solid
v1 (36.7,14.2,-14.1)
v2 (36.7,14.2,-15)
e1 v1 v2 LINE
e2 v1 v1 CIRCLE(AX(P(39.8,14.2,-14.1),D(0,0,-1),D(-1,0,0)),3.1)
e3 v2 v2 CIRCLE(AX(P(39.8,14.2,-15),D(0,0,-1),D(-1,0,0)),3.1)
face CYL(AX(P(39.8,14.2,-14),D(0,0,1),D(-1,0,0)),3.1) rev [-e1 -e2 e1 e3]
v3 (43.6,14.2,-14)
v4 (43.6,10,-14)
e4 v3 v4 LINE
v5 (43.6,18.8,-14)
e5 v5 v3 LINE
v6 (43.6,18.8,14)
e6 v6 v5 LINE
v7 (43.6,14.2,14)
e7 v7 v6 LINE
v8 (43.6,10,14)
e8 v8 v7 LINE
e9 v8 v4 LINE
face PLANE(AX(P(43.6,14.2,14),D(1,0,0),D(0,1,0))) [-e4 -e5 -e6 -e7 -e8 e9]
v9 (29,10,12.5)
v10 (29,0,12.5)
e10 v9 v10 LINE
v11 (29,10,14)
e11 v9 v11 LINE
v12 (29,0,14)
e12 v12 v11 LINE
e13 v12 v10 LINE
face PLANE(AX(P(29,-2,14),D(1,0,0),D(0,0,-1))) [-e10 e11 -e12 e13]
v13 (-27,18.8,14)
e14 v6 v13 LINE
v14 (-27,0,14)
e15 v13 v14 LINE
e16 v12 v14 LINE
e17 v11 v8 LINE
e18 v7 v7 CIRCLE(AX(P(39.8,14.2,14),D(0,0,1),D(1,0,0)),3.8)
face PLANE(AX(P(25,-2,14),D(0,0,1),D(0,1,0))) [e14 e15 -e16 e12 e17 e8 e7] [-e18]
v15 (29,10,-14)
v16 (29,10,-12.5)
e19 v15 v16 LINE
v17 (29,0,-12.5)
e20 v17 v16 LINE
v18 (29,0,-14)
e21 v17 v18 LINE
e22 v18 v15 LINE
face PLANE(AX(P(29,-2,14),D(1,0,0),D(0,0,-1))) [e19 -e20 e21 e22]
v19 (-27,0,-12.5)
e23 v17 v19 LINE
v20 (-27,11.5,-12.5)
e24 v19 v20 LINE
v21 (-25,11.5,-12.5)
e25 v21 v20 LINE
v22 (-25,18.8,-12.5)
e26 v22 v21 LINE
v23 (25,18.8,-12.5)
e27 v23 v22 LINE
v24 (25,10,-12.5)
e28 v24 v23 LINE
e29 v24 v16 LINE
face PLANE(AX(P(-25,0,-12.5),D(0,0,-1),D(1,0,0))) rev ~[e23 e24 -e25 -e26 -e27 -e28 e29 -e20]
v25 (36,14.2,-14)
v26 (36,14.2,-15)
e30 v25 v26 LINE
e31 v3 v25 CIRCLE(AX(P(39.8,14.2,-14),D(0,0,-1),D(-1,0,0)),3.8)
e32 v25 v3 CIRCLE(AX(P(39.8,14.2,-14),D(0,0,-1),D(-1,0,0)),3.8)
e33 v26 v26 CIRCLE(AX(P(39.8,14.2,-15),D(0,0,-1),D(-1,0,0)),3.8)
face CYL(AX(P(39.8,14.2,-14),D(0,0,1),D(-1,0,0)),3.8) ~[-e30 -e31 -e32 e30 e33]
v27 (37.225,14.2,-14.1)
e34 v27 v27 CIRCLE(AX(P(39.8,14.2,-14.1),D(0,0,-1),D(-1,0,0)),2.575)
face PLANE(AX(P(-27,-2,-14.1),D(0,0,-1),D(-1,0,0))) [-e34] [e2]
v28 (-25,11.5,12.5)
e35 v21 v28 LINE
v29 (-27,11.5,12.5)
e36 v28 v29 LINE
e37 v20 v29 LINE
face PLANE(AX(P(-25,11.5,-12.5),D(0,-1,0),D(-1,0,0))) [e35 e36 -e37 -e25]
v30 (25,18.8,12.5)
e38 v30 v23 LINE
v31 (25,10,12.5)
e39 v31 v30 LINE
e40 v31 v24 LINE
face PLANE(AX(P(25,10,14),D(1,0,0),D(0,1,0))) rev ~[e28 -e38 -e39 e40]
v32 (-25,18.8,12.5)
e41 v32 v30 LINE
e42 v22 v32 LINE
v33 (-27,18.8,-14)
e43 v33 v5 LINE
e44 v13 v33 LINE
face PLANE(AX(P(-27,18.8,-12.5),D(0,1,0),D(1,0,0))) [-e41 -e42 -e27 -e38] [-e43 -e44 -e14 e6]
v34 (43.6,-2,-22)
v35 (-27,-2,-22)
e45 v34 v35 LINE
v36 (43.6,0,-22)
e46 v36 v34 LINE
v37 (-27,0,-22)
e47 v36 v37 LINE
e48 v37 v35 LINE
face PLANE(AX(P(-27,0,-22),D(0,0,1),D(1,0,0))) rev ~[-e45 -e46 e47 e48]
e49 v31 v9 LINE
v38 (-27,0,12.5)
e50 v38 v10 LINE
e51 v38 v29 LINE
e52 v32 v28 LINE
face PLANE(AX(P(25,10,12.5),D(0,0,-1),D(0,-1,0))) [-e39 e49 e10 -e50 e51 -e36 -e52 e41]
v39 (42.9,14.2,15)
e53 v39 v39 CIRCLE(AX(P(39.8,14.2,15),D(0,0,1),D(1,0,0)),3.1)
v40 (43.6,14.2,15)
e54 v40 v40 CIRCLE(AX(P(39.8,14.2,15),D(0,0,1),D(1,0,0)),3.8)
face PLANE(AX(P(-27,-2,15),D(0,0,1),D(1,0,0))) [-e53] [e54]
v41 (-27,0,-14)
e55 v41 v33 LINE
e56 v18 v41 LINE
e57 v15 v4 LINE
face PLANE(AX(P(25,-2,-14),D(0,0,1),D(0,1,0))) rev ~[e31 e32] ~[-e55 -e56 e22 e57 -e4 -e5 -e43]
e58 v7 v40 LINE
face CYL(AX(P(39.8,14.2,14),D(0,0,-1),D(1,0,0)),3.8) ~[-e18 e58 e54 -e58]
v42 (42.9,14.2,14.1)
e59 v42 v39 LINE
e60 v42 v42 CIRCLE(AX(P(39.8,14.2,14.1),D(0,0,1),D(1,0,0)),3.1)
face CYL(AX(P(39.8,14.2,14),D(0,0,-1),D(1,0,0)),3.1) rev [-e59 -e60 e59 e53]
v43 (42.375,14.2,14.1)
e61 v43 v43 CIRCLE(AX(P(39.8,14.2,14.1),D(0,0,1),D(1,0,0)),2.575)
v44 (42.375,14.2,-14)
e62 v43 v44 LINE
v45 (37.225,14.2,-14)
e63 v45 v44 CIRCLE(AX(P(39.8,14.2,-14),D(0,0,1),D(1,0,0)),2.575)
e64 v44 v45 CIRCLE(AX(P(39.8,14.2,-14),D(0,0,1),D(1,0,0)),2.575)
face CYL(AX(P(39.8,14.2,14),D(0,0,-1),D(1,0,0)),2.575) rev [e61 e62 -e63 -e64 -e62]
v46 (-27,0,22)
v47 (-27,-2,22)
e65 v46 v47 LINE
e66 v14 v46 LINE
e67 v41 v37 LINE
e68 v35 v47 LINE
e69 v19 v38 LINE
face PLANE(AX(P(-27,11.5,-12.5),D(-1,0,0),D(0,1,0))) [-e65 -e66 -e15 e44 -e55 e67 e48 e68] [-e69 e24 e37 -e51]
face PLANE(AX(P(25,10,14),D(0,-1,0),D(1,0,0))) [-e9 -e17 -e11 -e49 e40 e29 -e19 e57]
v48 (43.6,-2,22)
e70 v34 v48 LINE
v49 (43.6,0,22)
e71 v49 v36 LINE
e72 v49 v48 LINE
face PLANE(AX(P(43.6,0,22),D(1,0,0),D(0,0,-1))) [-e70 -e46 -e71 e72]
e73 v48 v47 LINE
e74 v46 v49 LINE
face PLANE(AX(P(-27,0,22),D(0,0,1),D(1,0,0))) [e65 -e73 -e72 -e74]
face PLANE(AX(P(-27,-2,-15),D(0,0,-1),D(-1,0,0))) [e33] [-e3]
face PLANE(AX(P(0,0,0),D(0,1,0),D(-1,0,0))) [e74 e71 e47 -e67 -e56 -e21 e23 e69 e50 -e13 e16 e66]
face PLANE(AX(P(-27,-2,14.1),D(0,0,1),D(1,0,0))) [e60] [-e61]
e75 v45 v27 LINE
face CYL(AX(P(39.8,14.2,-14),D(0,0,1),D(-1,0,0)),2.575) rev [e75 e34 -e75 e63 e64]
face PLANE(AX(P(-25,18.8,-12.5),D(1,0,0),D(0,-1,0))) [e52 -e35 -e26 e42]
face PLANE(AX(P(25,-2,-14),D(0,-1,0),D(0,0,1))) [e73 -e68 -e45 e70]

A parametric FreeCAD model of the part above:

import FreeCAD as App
import Part
import Sketcher

V = App.Vector


def add_polygon(sketch, points):
    """Adds a closed chain of lines whose ends are joined by coincident constraints."""
    first, n = sketch.GeometryCount, len(points)
    for a, b in zip(points, points[1:] + points[:1]):
        sketch.addGeometry(Part.LineSegment(App.Vector(*a, 0), App.Vector(*b, 0)), False)
    for i in range(n):
        sketch.addConstraint(Sketcher.Constraint("Coincident", first + i, 2, first + (i + 1) % n, 1))

doc = App.newDocument("Part")
params = doc.addObject("Spreadsheet::Sheet", "Params")
for row, (alias, value) in enumerate([
    ("sketch1_width", "52 mm"),
    ("sketch1_height", "28 mm"),
    ("pad1_length", "2 mm"),
    ("sketch2_height", "1.5 mm"),
    ("sketch2_width", "52 mm"),
    ("pad2_length", "18.8 mm"),
    ("sketch3_width", "2 mm"),
    ("sketch3_height", "7.3 mm"),
    ("pad3_length", "25 mm"),
    ("sketch4_diameter", "5.15 mm"),
    ("sketch4_width", "18.6 mm"),
    ("sketch4_height", "8.8 mm"),
    ("pad4_length", "28 mm"),
    ("sketch5_width", "2 mm"),
    ("sketch5_height", "28 mm"),
    ("pad5_length", "18.6 mm"),
    ("sketch6_width", "10 mm"),
    ("sketch6_height", "1.5 mm"),
    ("pad6_length", "4 mm"),
    ("sketch7_diameter", "6.2 mm"),
    ("sketch7_diameter2", "7.6 mm"),
    ("pad7_length", "1 mm"),
    ("sketch8_diameter", "6.2 mm"),
    ("sketch8_diameter2", "5.15 mm"),
    ("pad8_length", "0.1 mm"),
    ("sketch9_diameter", "6.2 mm"),
    ("sketch9_diameter2", "5.15 mm"),
    ("pad9_length", "0.1 mm"),
    ("sketch10_diameter", "7.6 mm"),
    ("sketch10_diameter2", "6.2 mm"),
    ("pad10_length", "1 mm"),
    ("sketch11_height", "8 mm"),
    ("sketch11_width", "52 mm"),
    ("pad11_length", "2 mm"),
    ("sketch12_width", "2 mm"),
    ("sketch12_height", "8 mm"),
    ("pad12_length", "18.6 mm"),
], start=1):
    params.set(f"A{row}", alias)
    params.set(f"B{row}", "=" + value)
    params.setAlias(f"B{row}", alias)

body = doc.addObject("PartDesign::Body", "Body")

# Sketch on XZ plane
sketch1 = body.newObject("Sketcher::SketchObject", "Sketch")
sketch1.AttachmentSupport = (doc.getObject("XZ_Plane"), [""])
sketch1.MapMode = "FlatFace"
add_polygon(sketch1, [(25, 14), (25, -14), (-27, -14), (-27, 14)])  # lines 0-3
sketch1.addConstraint(Sketcher.Constraint("Vertical", 0))
sketch1.addConstraint(Sketcher.Constraint("Horizontal", 1))
sketch1.addConstraint(Sketcher.Constraint("Vertical", 2))
sketch1.addConstraint(Sketcher.Constraint("Horizontal", 3))
sketch1.addConstraint(Sketcher.Constraint("DistanceX", -1, 1, 0, 2, 25.0))
sketch1.addConstraint(Sketcher.Constraint("DistanceX", 1, 2, 1, 1, 52.0))
sketch1.addConstraint(Sketcher.Constraint("DistanceY", 0, 2, 0, 1, 28.0))
sketch1.addConstraint(Sketcher.Constraint("DistanceY", 0, 2, -1, 1, 14.0))
sketch1.setExpression("Constraints[9]", "Params.sketch1_width")
sketch1.setExpression("Constraints[10]", "Params.sketch1_height")
pad1 = body.newObject("PartDesign::Pad", "Pad")
pad1.Profile = sketch1
pad1.setExpression("Length", "Params.pad1_length")

# Sketch on XZ plane
sketch2 = body.newObject("Sketcher::SketchObject", "Sketch001")
sketch2.AttachmentSupport = (doc.getObject("XZ_Plane"), [""])
sketch2.MapMode = "FlatFace"
add_polygon(sketch2, [(25, 14), (25, 12.5), (-27, 12.5), (-27, 14)])  # lines 0-3
add_polygon(sketch2, [(-27, -12.5), (25, -12.5), (25, -14), (-27, -14)])  # lines 4-7
sketch2.addConstraint(Sketcher.Constraint("Vertical", 0))
sketch2.addConstraint(Sketcher.Constraint("Horizontal", 1))
sketch2.addConstraint(Sketcher.Constraint("Vertical", 2))
sketch2.addConstraint(Sketcher.Constraint("Horizontal", 3))
sketch2.addConstraint(Sketcher.Constraint("Horizontal", 4))
sketch2.addConstraint(Sketcher.Constraint("Vertical", 5))
sketch2.addConstraint(Sketcher.Constraint("Horizontal", 6))
sketch2.addConstraint(Sketcher.Constraint("Vertical", 7))
sketch2.addConstraint(Sketcher.Constraint("Symmetric", 0, 2, 4, 2, -1))
sketch2.addConstraint(Sketcher.Constraint("Symmetric", 2, 2, 6, 2, -1))
sketch2.addConstraint(Sketcher.Constraint("DistanceY", 0, 2, 0, 1, 1.5))
sketch2.addConstraint(Sketcher.Constraint("DistanceX", -1, 1, 0, 2, 25.0))
sketch2.addConstraint(Sketcher.Constraint("DistanceY", 4, 2, 0, 2, 25.0))
sketch2.addConstraint(Sketcher.Constraint("DistanceX", 1, 2, 1, 1, 52.0))
sketch2.setExpression("Constraints[18]", "Params.sketch2_height")
sketch2.setExpression("Constraints[21]", "Params.sketch2_width")
pad2 = body.newObject("PartDesign::Pad", "Pad001")
pad2.Profile = sketch2
pad2.setExpression("Length", "Params.pad2_length")
pad2.Reversed = True

# Sketch on XY plane
sketch3 = body.newObject("Sketcher::SketchObject", "Sketch002")
sketch3.AttachmentSupport = (doc.getObject("XY_Plane"), [""])
sketch3.MapMode = "FlatFace"
sketch3.AttachmentOffset = App.Placement(V(0, 0, -12.5), App.Rotation())
add_polygon(sketch3, [(-27, 18.8), (-27, 11.5), (-25, 11.5), (-25, 18.8)])  # lines 0-3
sketch3.addConstraint(Sketcher.Constraint("Vertical", 0))
sketch3.addConstraint(Sketcher.Constraint("Horizontal", 1))
sketch3.addConstraint(Sketcher.Constraint("Vertical", 2))
sketch3.addConstraint(Sketcher.Constraint("Horizontal", 3))
sketch3.addConstraint(Sketcher.Constraint("DistanceX", 1, 1, 1, 2, 2.0))
sketch3.addConstraint(Sketcher.Constraint("DistanceY", -1, 1, 0, 2, 11.5))
sketch3.addConstraint(Sketcher.Constraint("DistanceY", 0, 2, 0, 1, 7.3))
sketch3.addConstraint(Sketcher.Constraint("DistanceX", 0, 2, -1, 1, 27.0))
sketch3.setExpression("Constraints[8]", "Params.sketch3_width")
sketch3.setExpression("Constraints[10]", "Params.sketch3_height")
pad3 = body.newObject("PartDesign::Pad", "Pad002")
pad3.Profile = sketch3
pad3.setExpression("Length", "Params.pad3_length")

# Sketch on XY plane
sketch4 = body.newObject("Sketcher::SketchObject", "Sketch003")
sketch4.AttachmentSupport = (doc.getObject("XY_Plane"), [""])
sketch4.MapMode = "FlatFace"
sketch4.AttachmentOffset = App.Placement(V(0, 0, 14), App.Rotation())
add_polygon(sketch4, [(43.6, 10), (43.6, 18.8), (25, 18.8), (25, 10)])  # lines 0-3
sketch4.addGeometry(Part.Circle(V(39.8, 14.2, 0), V(0, 0, 1), 2.6), False)  # 4
sketch4.addConstraint(Sketcher.Constraint("Vertical", 0))
sketch4.addConstraint(Sketcher.Constraint("Horizontal", 1))
sketch4.addConstraint(Sketcher.Constraint("Vertical", 2))
sketch4.addConstraint(Sketcher.Constraint("Horizontal", 3))
sketch4.addConstraint(Sketcher.Constraint("Diameter", 4, 5.15))
sketch4.addConstraint(Sketcher.Constraint("DistanceX", 1, 2, 1, 1, 18.6))
sketch4.addConstraint(Sketcher.Constraint("DistanceY", -1, 1, 2, 2, 10.0))
sketch4.addConstraint(Sketcher.Constraint("DistanceY", -1, 1, 4, 3, 14.2))
sketch4.addConstraint(Sketcher.Constraint("DistanceY", 0, 1, 0, 2, 8.8))
sketch4.addConstraint(Sketcher.Constraint("DistanceX", -1, 1, 1, 2, 25.0))
sketch4.addConstraint(Sketcher.Constraint("DistanceX", -1, 1, 4, 3, 39.8))
sketch4.setExpression("Constraints[8]", "Params.sketch4_diameter")
sketch4.setExpression("Constraints[9]", "Params.sketch4_width")
sketch4.setExpression("Constraints[12]", "Params.sketch4_height")
pad4 = body.newObject("PartDesign::Pad", "Pad003")
pad4.Profile = sketch4
pad4.setExpression("Length", "Params.pad4_length")
pad4.Reversed = True

# Sketch on YZ plane
sketch5 = body.newObject("Sketcher::SketchObject", "Sketch004")
sketch5.AttachmentSupport = (doc.getObject("YZ_Plane"), [""])
sketch5.MapMode = "FlatFace"
sketch5.AttachmentOffset = App.Placement(V(0, 0, 25), App.Rotation())
add_polygon(sketch5, [(0, 14), (-2, 14), (-2, -14), (0, -14)])  # lines 0-3
sketch5.addConstraint(Sketcher.Constraint("Horizontal", 0))
sketch5.addConstraint(Sketcher.Constraint("Vertical", 1))
sketch5.addConstraint(Sketcher.Constraint("Horizontal", 2))
sketch5.addConstraint(Sketcher.Constraint("Vertical", 3))
sketch5.addConstraint(Sketcher.Constraint("Symmetric", 2, 2, 3, 2, -1, 1))
sketch5.addConstraint(Sketcher.Constraint("DistanceX", 0, 2, 0, 1, 2.0))
sketch5.addConstraint(Sketcher.Constraint("DistanceY", 1, 2, 1, 1, 28.0))
sketch5.setExpression("Constraints[9]", "Params.sketch5_width")
sketch5.setExpression("Constraints[10]", "Params.sketch5_height")
pad5 = body.newObject("PartDesign::Pad", "Pad004")
pad5.Profile = sketch5
pad5.setExpression("Length", "Params.pad5_length")

# Sketch on YZ plane
sketch6 = body.newObject("Sketcher::SketchObject", "Sketch005")
sketch6.AttachmentSupport = (doc.getObject("YZ_Plane"), [""])
sketch6.MapMode = "FlatFace"
sketch6.AttachmentOffset = App.Placement(V(0, 0, 25), App.Rotation())
add_polygon(sketch6, [(10, 14), (0, 14), (0, 12.5), (10, 12.5)])  # lines 0-3
add_polygon(sketch6, [(0, -12.5), (0, -14), (10, -14), (10, -12.5)])  # lines 4-7
sketch6.addConstraint(Sketcher.Constraint("Horizontal", 0))
sketch6.addConstraint(Sketcher.Constraint("Vertical", 1))
sketch6.addConstraint(Sketcher.Constraint("Horizontal", 2))
sketch6.addConstraint(Sketcher.Constraint("Vertical", 3))
sketch6.addConstraint(Sketcher.Constraint("Vertical", 4))
sketch6.addConstraint(Sketcher.Constraint("Horizontal", 5))
sketch6.addConstraint(Sketcher.Constraint("Vertical", 6))
sketch6.addConstraint(Sketcher.Constraint("Horizontal", 7))
sketch6.addConstraint(Sketcher.Constraint("Symmetric", 0, 2, 4, 2, -1, 1))
sketch6.addConstraint(Sketcher.Constraint("Symmetric", 2, 2, 6, 2, -1))
sketch6.addConstraint(Sketcher.Constraint("PointOnObject", 0, 2, -2))
sketch6.addConstraint(Sketcher.Constraint("DistanceX", 0, 2, 0, 1, 10.0))
sketch6.addConstraint(Sketcher.Constraint("DistanceY", 1, 2, 1, 1, 1.5))
sketch6.addConstraint(Sketcher.Constraint("DistanceY", -1, 1, 0, 2, 14.0))
sketch6.setExpression("Constraints[19]", "Params.sketch6_width")
sketch6.setExpression("Constraints[20]", "Params.sketch6_height")
pad6 = body.newObject("PartDesign::Pad", "Pad005")
pad6.Profile = sketch6
pad6.setExpression("Length", "Params.pad6_length")

# Sketch on XY plane
sketch7 = body.newObject("Sketcher::SketchObject", "Sketch006")
sketch7.AttachmentSupport = (doc.getObject("XY_Plane"), [""])
sketch7.MapMode = "FlatFace"
sketch7.AttachmentOffset = App.Placement(V(0, 0, 14), App.Rotation())
sketch7.addGeometry(Part.Circle(V(39.8, 14.2, 0), V(0, 0, 1), 3.8), False)
sketch7.addGeometry(Part.Circle(V(39.8, 14.2, 0), V(0, 0, 1), 3.1), False)
sketch7.addConstraint(Sketcher.Constraint("Coincident", 1, 3, 0, 3))
sketch7.addConstraint(Sketcher.Constraint("Diameter", 1, 6.2))
sketch7.addConstraint(Sketcher.Constraint("Diameter", 0, 7.6))
sketch7.addConstraint(Sketcher.Constraint("DistanceY", -1, 1, 0, 3, 14.2))
sketch7.addConstraint(Sketcher.Constraint("DistanceX", -1, 1, 0, 3, 39.8))
sketch7.setExpression("Constraints[1]", "Params.sketch7_diameter")
sketch7.setExpression("Constraints[2]", "Params.sketch7_diameter2")
pad7 = body.newObject("PartDesign::Pad", "Pad006")
pad7.Profile = sketch7
pad7.setExpression("Length", "Params.pad7_length")

# Sketch on XY plane
sketch8 = body.newObject("Sketcher::SketchObject", "Sketch007")
sketch8.AttachmentSupport = (doc.getObject("XY_Plane"), [""])
sketch8.MapMode = "FlatFace"
sketch8.AttachmentOffset = App.Placement(V(0, 0, 14), App.Rotation())
sketch8.addGeometry(Part.Circle(V(39.8, 14.2, 0), V(0, 0, 1), 3.1), False)
sketch8.addGeometry(Part.Circle(V(39.8, 14.2, 0), V(0, 0, 1), 2.6), False)
sketch8.addConstraint(Sketcher.Constraint("Coincident", 1, 3, 0, 3))
sketch8.addConstraint(Sketcher.Constraint("Diameter", 0, 6.2))
sketch8.addConstraint(Sketcher.Constraint("Diameter", 1, 5.15))
sketch8.addConstraint(Sketcher.Constraint("DistanceY", -1, 1, 0, 3, 14.2))
sketch8.addConstraint(Sketcher.Constraint("DistanceX", -1, 1, 0, 3, 39.8))
sketch8.setExpression("Constraints[1]", "Params.sketch8_diameter")
sketch8.setExpression("Constraints[2]", "Params.sketch8_diameter2")
pad8 = body.newObject("PartDesign::Pad", "Pad007")
pad8.Profile = sketch8
pad8.setExpression("Length", "Params.pad8_length")

# Sketch on XY plane
sketch9 = body.newObject("Sketcher::SketchObject", "Sketch008")
sketch9.AttachmentSupport = (doc.getObject("XY_Plane"), [""])
sketch9.MapMode = "FlatFace"
sketch9.AttachmentOffset = App.Placement(V(0, 0, -14), App.Rotation())
sketch9.addGeometry(Part.Circle(V(39.8, 14.2, 0), V(0, 0, 1), 3.1), False)
sketch9.addGeometry(Part.Circle(V(39.8, 14.2, 0), V(0, 0, 1), 2.6), False)
sketch9.addConstraint(Sketcher.Constraint("Coincident", 1, 3, 0, 3))
sketch9.addConstraint(Sketcher.Constraint("Diameter", 0, 6.2))
sketch9.addConstraint(Sketcher.Constraint("Diameter", 1, 5.15))
sketch9.addConstraint(Sketcher.Constraint("DistanceX", -1, 1, 0, 3, 39.8))
sketch9.addConstraint(Sketcher.Constraint("DistanceY", -1, 1, 0, 3, 14.2))
sketch9.setExpression("Constraints[1]", "Params.sketch9_diameter")
sketch9.setExpression("Constraints[2]", "Params.sketch9_diameter2")
pad9 = body.newObject("PartDesign::Pad", "Pad008")
pad9.Profile = sketch9
pad9.setExpression("Length", "Params.pad9_length")
pad9.Reversed = True

# Sketch on XY plane
sketch10 = body.newObject("Sketcher::SketchObject", "Sketch009")
sketch10.AttachmentSupport = (doc.getObject("XY_Plane"), [""])
sketch10.MapMode = "FlatFace"
sketch10.AttachmentOffset = App.Placement(V(0, 0, -14), App.Rotation())
sketch10.addGeometry(Part.Circle(V(39.8, 14.2, 0), V(0, 0, 1), 3.8), False)
sketch10.addGeometry(Part.Circle(V(39.8, 14.2, 0), V(0, 0, 1), 3.1), False)
sketch10.addConstraint(Sketcher.Constraint("Coincident", 1, 3, 0, 3))
sketch10.addConstraint(Sketcher.Constraint("Diameter", 0, 7.6))
sketch10.addConstraint(Sketcher.Constraint("Diameter", 1, 6.2))
sketch10.addConstraint(Sketcher.Constraint("DistanceX", -1, 1, 0, 3, 39.8))
sketch10.addConstraint(Sketcher.Constraint("DistanceY", -1, 1, 0, 3, 14.2))
sketch10.setExpression("Constraints[1]", "Params.sketch10_diameter")
sketch10.setExpression("Constraints[2]", "Params.sketch10_diameter2")
pad10 = body.newObject("PartDesign::Pad", "Pad009")
pad10.Profile = sketch10
pad10.setExpression("Length", "Params.pad10_length")
pad10.Reversed = True

# Sketch on XZ plane
sketch11 = body.newObject("Sketcher::SketchObject", "Sketch010")
sketch11.AttachmentSupport = (doc.getObject("XZ_Plane"), [""])
sketch11.MapMode = "FlatFace"
add_polygon(sketch11, [(25, 22), (25, 14), (-27, 14), (-27, 22)])  # lines 0-3
add_polygon(sketch11, [(-27, -14), (25, -14), (25, -22), (-27, -22)])  # lines 4-7
sketch11.addConstraint(Sketcher.Constraint("Vertical", 0))
sketch11.addConstraint(Sketcher.Constraint("Horizontal", 1))
sketch11.addConstraint(Sketcher.Constraint("Vertical", 2))
sketch11.addConstraint(Sketcher.Constraint("Horizontal", 3))
sketch11.addConstraint(Sketcher.Constraint("Horizontal", 4))
sketch11.addConstraint(Sketcher.Constraint("Vertical", 5))
sketch11.addConstraint(Sketcher.Constraint("Horizontal", 6))
sketch11.addConstraint(Sketcher.Constraint("Vertical", 7))
sketch11.addConstraint(Sketcher.Constraint("Symmetric", 0, 2, 4, 2, -1))
sketch11.addConstraint(Sketcher.Constraint("Symmetric", 2, 2, 6, 2, -1))
sketch11.addConstraint(Sketcher.Constraint("DistanceY", 0, 2, 0, 1, 8.0))
sketch11.addConstraint(Sketcher.Constraint("DistanceX", -1, 1, 0, 2, 25.0))
sketch11.addConstraint(Sketcher.Constraint("DistanceX", 1, 2, 1, 1, 52.0))
sketch11.addConstraint(Sketcher.Constraint("DistanceY", -1, 1, 0, 2, 14.0))
sketch11.setExpression("Constraints[18]", "Params.sketch11_height")
sketch11.setExpression("Constraints[20]", "Params.sketch11_width")
pad11 = body.newObject("PartDesign::Pad", "Pad010")
pad11.Profile = sketch11
pad11.setExpression("Length", "Params.pad11_length")

# Sketch on YZ plane
sketch12 = body.newObject("Sketcher::SketchObject", "Sketch011")
sketch12.AttachmentSupport = (doc.getObject("YZ_Plane"), [""])
sketch12.MapMode = "FlatFace"
sketch12.AttachmentOffset = App.Placement(V(0, 0, 25), App.Rotation())
add_polygon(sketch12, [(0, 22), (-2, 22), (-2, 14), (0, 14)])  # lines 0-3
add_polygon(sketch12, [(0, -14), (-2, -14), (-2, -22), (0, -22)])  # lines 4-7
sketch12.addConstraint(Sketcher.Constraint("Horizontal", 0))
sketch12.addConstraint(Sketcher.Constraint("Vertical", 1))
sketch12.addConstraint(Sketcher.Constraint("Horizontal", 2))
sketch12.addConstraint(Sketcher.Constraint("Vertical", 3))
sketch12.addConstraint(Sketcher.Constraint("Horizontal", 4))
sketch12.addConstraint(Sketcher.Constraint("Vertical", 5))
sketch12.addConstraint(Sketcher.Constraint("Horizontal", 6))
sketch12.addConstraint(Sketcher.Constraint("Vertical", 7))
sketch12.addConstraint(Sketcher.Constraint("Symmetric", 3, 2, 6, 2, -1, 1))
sketch12.addConstraint(Sketcher.Constraint("Symmetric", 1, 2, 4, 2, -1))
sketch12.addConstraint(Sketcher.Constraint("PointOnObject", 2, 2, -2))
sketch12.addConstraint(Sketcher.Constraint("DistanceX", 0, 2, 0, 1, 2.0))
sketch12.addConstraint(Sketcher.Constraint("DistanceY", 1, 2, 1, 1, 8.0))
sketch12.addConstraint(Sketcher.Constraint("DistanceY", -1, 1, 0, 2, 22.0))
sketch12.setExpression("Constraints[19]", "Params.sketch12_width")
sketch12.setExpression("Constraints[20]", "Params.sketch12_height")
pad12 = body.newObject("PartDesign::Pad", "Pad011")
pad12.Profile = sketch12
pad12.setExpression("Length", "Params.pad12_length")

doc.recompute()
